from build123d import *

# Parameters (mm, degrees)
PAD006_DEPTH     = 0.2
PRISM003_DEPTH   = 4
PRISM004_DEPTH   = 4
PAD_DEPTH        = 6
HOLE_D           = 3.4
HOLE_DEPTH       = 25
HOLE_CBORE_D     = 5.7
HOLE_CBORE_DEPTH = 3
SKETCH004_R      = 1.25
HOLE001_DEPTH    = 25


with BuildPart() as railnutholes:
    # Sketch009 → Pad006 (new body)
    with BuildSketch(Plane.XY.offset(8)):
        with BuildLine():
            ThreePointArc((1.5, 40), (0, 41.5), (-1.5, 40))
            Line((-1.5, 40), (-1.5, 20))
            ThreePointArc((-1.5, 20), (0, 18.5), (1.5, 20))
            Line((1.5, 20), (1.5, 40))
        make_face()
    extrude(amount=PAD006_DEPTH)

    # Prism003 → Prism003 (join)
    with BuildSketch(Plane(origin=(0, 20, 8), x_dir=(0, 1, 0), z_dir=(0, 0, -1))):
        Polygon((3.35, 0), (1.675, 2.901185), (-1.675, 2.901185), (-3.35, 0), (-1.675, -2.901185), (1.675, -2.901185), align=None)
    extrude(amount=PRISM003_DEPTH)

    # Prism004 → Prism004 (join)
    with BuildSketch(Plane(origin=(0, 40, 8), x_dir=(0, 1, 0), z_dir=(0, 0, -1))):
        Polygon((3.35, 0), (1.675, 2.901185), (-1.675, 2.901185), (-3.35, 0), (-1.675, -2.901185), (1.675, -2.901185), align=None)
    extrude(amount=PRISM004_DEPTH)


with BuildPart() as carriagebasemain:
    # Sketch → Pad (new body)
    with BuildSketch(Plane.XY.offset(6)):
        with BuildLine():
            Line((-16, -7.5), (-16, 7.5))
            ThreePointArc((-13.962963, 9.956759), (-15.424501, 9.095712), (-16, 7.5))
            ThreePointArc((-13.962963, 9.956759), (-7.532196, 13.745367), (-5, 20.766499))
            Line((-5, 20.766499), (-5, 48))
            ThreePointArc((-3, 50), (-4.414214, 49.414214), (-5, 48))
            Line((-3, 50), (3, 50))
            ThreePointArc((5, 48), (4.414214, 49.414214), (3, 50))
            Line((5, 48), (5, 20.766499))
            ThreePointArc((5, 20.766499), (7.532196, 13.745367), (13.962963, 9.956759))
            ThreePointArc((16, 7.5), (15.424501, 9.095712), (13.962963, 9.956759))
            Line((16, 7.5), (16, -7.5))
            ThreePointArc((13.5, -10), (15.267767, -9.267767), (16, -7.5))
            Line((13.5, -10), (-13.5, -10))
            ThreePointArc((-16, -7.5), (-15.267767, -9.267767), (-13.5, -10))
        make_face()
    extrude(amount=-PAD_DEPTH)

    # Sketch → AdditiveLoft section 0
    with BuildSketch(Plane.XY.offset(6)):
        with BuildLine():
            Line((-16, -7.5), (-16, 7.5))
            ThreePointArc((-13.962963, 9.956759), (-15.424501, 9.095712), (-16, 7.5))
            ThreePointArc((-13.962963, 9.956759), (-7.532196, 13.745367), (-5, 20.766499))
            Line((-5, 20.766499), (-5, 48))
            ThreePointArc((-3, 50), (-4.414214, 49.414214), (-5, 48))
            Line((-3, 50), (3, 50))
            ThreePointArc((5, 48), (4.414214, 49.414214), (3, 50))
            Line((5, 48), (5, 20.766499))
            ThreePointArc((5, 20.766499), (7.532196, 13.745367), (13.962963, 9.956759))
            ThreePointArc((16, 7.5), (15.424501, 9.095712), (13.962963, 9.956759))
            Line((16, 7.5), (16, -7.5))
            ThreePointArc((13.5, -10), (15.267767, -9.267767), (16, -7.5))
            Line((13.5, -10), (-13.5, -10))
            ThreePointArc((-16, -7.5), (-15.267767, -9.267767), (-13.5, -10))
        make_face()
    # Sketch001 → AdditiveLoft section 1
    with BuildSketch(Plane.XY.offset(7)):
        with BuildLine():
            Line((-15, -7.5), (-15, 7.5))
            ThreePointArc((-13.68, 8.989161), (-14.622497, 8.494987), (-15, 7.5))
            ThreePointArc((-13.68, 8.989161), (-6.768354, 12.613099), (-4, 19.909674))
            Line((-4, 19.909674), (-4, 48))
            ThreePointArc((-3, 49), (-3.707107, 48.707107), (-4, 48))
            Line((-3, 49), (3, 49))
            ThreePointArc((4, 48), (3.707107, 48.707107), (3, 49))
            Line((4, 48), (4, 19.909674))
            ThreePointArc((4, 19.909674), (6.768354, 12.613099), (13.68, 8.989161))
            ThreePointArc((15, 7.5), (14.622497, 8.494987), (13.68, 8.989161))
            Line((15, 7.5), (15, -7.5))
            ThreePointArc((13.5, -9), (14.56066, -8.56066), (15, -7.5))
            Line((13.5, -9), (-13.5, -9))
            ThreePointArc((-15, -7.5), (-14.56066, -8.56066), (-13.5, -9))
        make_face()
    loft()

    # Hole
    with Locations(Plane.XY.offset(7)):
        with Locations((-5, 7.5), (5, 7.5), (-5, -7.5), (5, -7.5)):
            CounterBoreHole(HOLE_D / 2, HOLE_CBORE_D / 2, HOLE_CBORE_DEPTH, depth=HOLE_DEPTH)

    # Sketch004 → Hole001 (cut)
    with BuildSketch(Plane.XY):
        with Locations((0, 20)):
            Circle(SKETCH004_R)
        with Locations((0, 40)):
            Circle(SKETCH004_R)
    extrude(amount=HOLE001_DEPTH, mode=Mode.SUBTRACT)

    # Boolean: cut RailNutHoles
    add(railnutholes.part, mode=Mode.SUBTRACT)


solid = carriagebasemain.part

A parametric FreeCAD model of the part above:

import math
import FreeCAD as App
import Part
import Sketcher

V = App.Vector
Q = App.Units.Quantity

doc = App.newDocument("Part")
body = doc.addObject("PartDesign::Body", "Body")

sketch1 = doc.addObject("Sketcher::SketchObject", "Sketch")
body.addObject(sketch1)
sketch1.AttachmentSupport = (doc.XY_Plane, [""])
sketch1.MapMode = "FlatFace"
sketch1.AttachmentOffset = App.Placement(V(0, 0, 8), App.Rotation())
sketch1.addGeometry(Part.ArcOfCircle(Part.Circle(V(0, 40, 0), V(0, 0, 1), 1.5), math.radians(0), math.radians(180)), False)
sketch1.addGeometry(Part.LineSegment(V(-1.5, 40, 0), V(-1.5, 20, 0)), False)
sketch1.addGeometry(Part.ArcOfCircle(Part.Circle(V(0, 20, 0), V(0, 0, 1), 1.5), math.radians(180), math.radians(360)), False)
sketch1.addGeometry(Part.LineSegment(V(1.5, 20, 0), V(1.5, 40, 0)), False)
sketch1.addConstraint(Sketcher.Constraint("Tangent", 0, 2, 1, 1))
sketch1.addConstraint(Sketcher.Constraint("Tangent", 1, 2, 2, 1))
sketch1.addConstraint(Sketcher.Constraint("Tangent", 2, 2, 3, 1))
sketch1.addConstraint(Sketcher.Constraint("Tangent", 3, 2, 0, 1))
sketch1.addConstraint(Sketcher.Constraint("Vertical", 1))
sketch1.addConstraint(Sketcher.Constraint("Vertical", 3))
sketch1.addConstraint(Sketcher.Constraint("PointOnObject", 0, 3, -2))
sketch1.addConstraint(Sketcher.Constraint("Radius", 0, 1.5))
sketch1.addConstraint(Sketcher.Constraint("DistanceY", 1, 2, 1, 1, 20.0))
sketch1.addConstraint(Sketcher.Constraint("DistanceY", -1, 1, 0, 3, 40.0))
pad1 = doc.addObject("PartDesign::Pad", "Pad")
body.addObject(pad1)
pad1.Profile = sketch1
pad1.Length = 0.2

sketch2 = doc.addObject("Sketcher::SketchObject", "Sketch001")
body.addObject(sketch2)
sketch2.AttachmentSupport = (doc.XY_Plane, [""])
sketch2.MapMode = "FlatFace"
sketch2.AttachmentOffset = App.Placement(V(0, 0, 8), App.Rotation())
sketch2.addGeometry(Part.LineSegment(V(0, 23.35, 0), V(2.901185, 21.675, 0)), False)
sketch2.addGeometry(Part.LineSegment(V(2.901185, 21.675, 0), V(2.901185, 18.325, 0)), False)
sketch2.addGeometry(Part.LineSegment(V(2.901185, 18.325, 0), V(0, 16.65, 0)), False)
sketch2.addGeometry(Part.LineSegment(V(0, 16.65, 0), V(-2.901185, 18.325, 0)), False)
sketch2.addGeometry(Part.LineSegment(V(-2.901185, 18.325, 0), V(-2.901185, 21.675, 0)), False)
sketch2.addGeometry(Part.LineSegment(V(-2.901185, 21.675, 0), V(0, 23.35, 0)), False)
sketch2.addConstraint(Sketcher.Constraint("Coincident", 0, 2, 1, 1))
sketch2.addConstraint(Sketcher.Constraint("Coincident", 1, 2, 2, 1))
sketch2.addConstraint(Sketcher.Constraint("Coincident", 2, 2, 3, 1))
sketch2.addConstraint(Sketcher.Constraint("Coincident", 3, 2, 4, 1))
sketch2.addConstraint(Sketcher.Constraint("Coincident", 4, 2, 5, 1))
sketch2.addConstraint(Sketcher.Constraint("Coincident", 5, 2, 0, 1))
sketch2.addConstraint(Sketcher.Constraint("Vertical", 1))
sketch2.addConstraint(Sketcher.Constraint("Vertical", 4))
sketch2.addConstraint(Sketcher.Constraint("Symmetric", 1, 2, 3, 2, -2))
sketch2.addConstraint(Sketcher.Constraint("PointOnObject", 2, 2, -2))
sketch2.addConstraint(Sketcher.Constraint("PointOnObject", 5, 2, -2))
sketch2.addConstraint(Sketcher.Constraint("Parallel", 0, 3))
sketch2.addConstraint(Sketcher.Constraint("Parallel", 2, 5))
sketch2.addConstraint(Sketcher.Constraint("Angle", 0, Q("-30.000001 deg")))
sketch2.addConstraint(Sketcher.Constraint("DistanceY", 1, 2, 1, 1, 3.35))
sketch2.addConstraint(Sketcher.Constraint("DistanceY", 2, 2, 5, 2, 6.7))
sketch2.addConstraint(Sketcher.Constraint("DistanceY", -1, 1, 2, 2, 16.65))
pad2 = doc.addObject("PartDesign::Pad", "Pad001")
body.addObject(pad2)
pad2.Profile = sketch2
pad2.Length = 4
pad2.Reversed = True

sketch3 = doc.addObject("Sketcher::SketchObject", "Sketch002")
body.addObject(sketch3)
sketch3.AttachmentSupport = (doc.XY_Plane, [""])
sketch3.MapMode = "FlatFace"
sketch3.AttachmentOffset = App.Placement(V(0, 0, 8), App.Rotation())
sketch3.addGeometry(Part.LineSegment(V(0, 43.35, 0), V(2.901185, 41.675, 0)), False)
sketch3.addGeometry(Part.LineSegment(V(2.901185, 41.675, 0), V(2.901185, 38.325, 0)), False)
sketch3.addGeometry(Part.LineSegment(V(2.901185, 38.325, 0), V(0, 36.65, 0)), False)
sketch3.addGeometry(Part.LineSegment(V(0, 36.65, 0), V(-2.901185, 38.325, 0)), False)
sketch3.addGeometry(Part.LineSegment(V(-2.901185, 38.325, 0), V(-2.901185, 41.675, 0)), False)
sketch3.addGeometry(Part.LineSegment(V(-2.901185, 41.675, 0), V(0, 43.35, 0)), False)
sketch3.addConstraint(Sketcher.Constraint("Coincident", 0, 2, 1, 1))
sketch3.addConstraint(Sketcher.Constraint("Coincident", 1, 2, 2, 1))
sketch3.addConstraint(Sketcher.Constraint("Coincident", 2, 2, 3, 1))
sketch3.addConstraint(Sketcher.Constraint("Coincident", 3, 2, 4, 1))
sketch3.addConstraint(Sketcher.Constraint("Coincident", 4, 2, 5, 1))
sketch3.addConstraint(Sketcher.Constraint("Coincident", 5, 2, 0, 1))
sketch3.addConstraint(Sketcher.Constraint("Vertical", 1))
sketch3.addConstraint(Sketcher.Constraint("Vertical", 4))
sketch3.addConstraint(Sketcher.Constraint("Symmetric", 1, 2, 3, 2, -2))
sketch3.addConstraint(Sketcher.Constraint("PointOnObject", 2, 2, -2))
sketch3.addConstraint(Sketcher.Constraint("PointOnObject", 5, 2, -2))
sketch3.addConstraint(Sketcher.Constraint("Parallel", 0, 3))
sketch3.addConstraint(Sketcher.Constraint("Parallel", 2, 5))
sketch3.addConstraint(Sketcher.Constraint("Angle", 0, Q("-30.000001 deg")))
sketch3.addConstraint(Sketcher.Constraint("DistanceY", 1, 2, 1, 1, 3.35))
sketch3.addConstraint(Sketcher.Constraint("DistanceY", 2, 2, 5, 2, 6.7))
sketch3.addConstraint(Sketcher.Constraint("DistanceY", -1, 1, 2, 2, 36.65))
pad3 = doc.addObject("PartDesign::Pad", "Pad002")
body.addObject(pad3)
pad3.Profile = sketch3
pad3.Length = 4
pad3.Reversed = True
body2 = doc.addObject("PartDesign::Body", "Body001")

sketch4 = doc.addObject("Sketcher::SketchObject", "Sketch003")
body2.addObject(sketch4)
sketch4.AttachmentSupport = (doc.getObject("XY_Plane001"), [""])
sketch4.MapMode = "FlatFace"
sketch4.AttachmentOffset = App.Placement(V(0, 0, 6), App.Rotation())
sketch4.addGeometry(Part.LineSegment(V(-16, 7.5, 0), V(-16, -7.5, 0)), False)
sketch4.addGeometry(Part.ArcOfCircle(Part.Circle(V(-13.5, -7.5, 0), V(0, 0, 1), 2.5), math.radians(179.999996), math.radians(270.000004)), False)
sketch4.addGeometry(Part.LineSegment(V(-13.5, -10, 0), V(13.5, -10, 0)), False)
sketch4.addGeometry(Part.ArcOfCircle(Part.Circle(V(13.5, -7.5, 0), V(0, 0, 1), 2.5), math.radians(-90.000004), math.radians(0.000004)), False)
sketch4.addGeometry(Part.LineSegment(V(16, -7.5, 0), V(16, 7.5, 0)), False)
sketch4.addGeometry(Part.ArcOfCircle(Part.Circle(V(13.500001, 7.500001, 0), V(0, 0, 1), 2.499999), math.radians(-0.000013), math.radians(79.328085)), False)
sketch4.addGeometry(Part.ArcOfCircle(Part.Circle(V(16, 20.766499, 0), V(0, 0, 1), 11), math.radians(-180), math.radians(-100.671929)), False)
sketch4.addGeometry(Part.LineSegment(V(5, 20.766499, 0), V(5, 48, 0)), False)
sketch4.addGeometry(Part.ArcOfCircle(Part.Circle(V(3.000001, 48.000001, 0), V(0, 0, 1), 1.999999), math.radians(-0.000043), math.radians(90.000043)), False)
sketch4.addGeometry(Part.LineSegment(V(3, 50, 0), V(-3, 50, 0)), False)
sketch4.addGeometry(Part.ArcOfCircle(Part.Circle(V(-3.000001, 48.000001, 0), V(0, 0, 1), 1.999999), math.radians(89.999957), math.radians(180.000043)), False)
sketch4.addGeometry(Part.LineSegment(V(-5, 48, 0), V(-5, 20.766499, 0)), False)
sketch4.addGeometry(Part.ArcOfCircle(Part.Circle(V(-16, 20.766499, 0), V(0, 0, 1), 11), math.radians(-79.328071), math.radians(0)), False)
sketch4.addGeometry(Part.ArcOfCircle(Part.Circle(V(-13.500001, 7.500001, 0), V(0, 0, 1), 2.499999), math.radians(100.671915), math.radians(180.000013)), False)
sketch4.addConstraint(Sketcher.Constraint("Tangent", 0, 2, 1, 1))
sketch4.addConstraint(Sketcher.Constraint("Tangent", 1, 2, 2, 1))
sketch4.addConstraint(Sketcher.Constraint("Tangent", 2, 2, 3, 1))
sketch4.addConstraint(Sketcher.Constraint("Tangent", 3, 2, 4, 1))
sketch4.addConstraint(Sketcher.Constraint("Tangent", 4, 2, 5, 1))
sketch4.addConstraint(Sketcher.Constraint("Tangent", 5, 2, 6, 2))
sketch4.addConstraint(Sketcher.Constraint("Tangent", 6, 1, 7, 1))
sketch4.addConstraint(Sketcher.Constraint("Tangent", 7, 2, 8, 1))
sketch4.addConstraint(Sketcher.Constraint("Tangent", 8, 2, 9, 1))
sketch4.addConstraint(Sketcher.Constraint("Tangent", 9, 2, 10, 1))
sketch4.addConstraint(Sketcher.Constraint("Tangent", 10, 2, 11, 1))
sketch4.addConstraint(Sketcher.Constraint("Tangent", 11, 2, 12, 2))
sketch4.addConstraint(Sketcher.Constraint("Tangent", 12, 1, 13, 1))
sketch4.addConstraint(Sketcher.Constraint("Tangent", 13, 2, 0, 1))
sketch4.addConstraint(Sketcher.Constraint("Vertical", 0))
sketch4.addConstraint(Sketcher.Constraint("Horizontal", 2))
sketch4.addConstraint(Sketcher.Constraint("Vertical", 4))
sketch4.addConstraint(Sketcher.Constraint("Vertical", 7))
sketch4.addConstraint(Sketcher.Constraint("Horizontal", 9))
sketch4.addConstraint(Sketcher.Constraint("Vertical", 11))
sketch4.addConstraint(Sketcher.Constraint("Equal", 1, 3))
sketch4.addConstraint(Sketcher.Constraint("Equal", 3, 5))
sketch4.addConstraint(Sketcher.Constraint("Equal", 8, 10))
sketch4.addConstraint(Sketcher.Constraint("Equal", 6, 12))
sketch4.addConstraint(Sketcher.Constraint("Equal", 5, 13))
sketch4.addConstraint(Sketcher.Constraint("Symmetric", 1, 3, 5, 3, -1, 1))
sketch4.addConstraint(Sketcher.Constraint("Symmetric", 6, 3, 12, 3, -2))
sketch4.addConstraint(Sketcher.Constraint("Vertical", 12, 3, 0, 2))
sketch4.addConstraint(Sketcher.Constraint("Radius", 6, 11.0))
sketch4.addConstraint(Sketcher.Constraint("Radius", 8, 1.999999))
sketch4.addConstraint(Sketcher.Constraint("Radius", 1, 2.5))
sketch4.addConstraint(Sketcher.Constraint("DistanceX", 2, 1, 2, 2, 27.0))
sketch4.addConstraint(Sketcher.Constraint("DistanceY", 0, 2, 0, 1, 15.0))
sketch4.addConstraint(Sketcher.Constraint("DistanceY", -1, 1, 8, 3, 48.000001))
pad4 = doc.addObject("PartDesign::Pad", "Pad003")
body2.addObject(pad4)
pad4.Profile = sketch4
pad4.Length = 6
pad4.Reversed = True

sketch5 = doc.addObject("Sketcher::SketchObject", "Sketch004")
body2.addObject(sketch5)
sketch5.AttachmentSupport = (doc.getObject("XY_Plane001"), [""])
sketch5.MapMode = "FlatFace"
sketch5.AttachmentOffset = App.Placement(V(0, 0, 6), App.Rotation())
sketch5.addGeometry(Part.LineSegment(V(-16, 7.5, 0), V(-16, -7.5, 0)), False)
sketch5.addGeometry(Part.ArcOfCircle(Part.Circle(V(-13.5, -7.5, 0), V(0, 0, 1), 2.5), math.radians(179.999996), math.radians(270.000004)), False)
sketch5.addGeometry(Part.LineSegment(V(-13.5, -10, 0), V(13.5, -10, 0)), False)
sketch5.addGeometry(Part.ArcOfCircle(Part.Circle(V(13.5, -7.5, 0), V(0, 0, 1), 2.5), math.radians(-90.000004), math.radians(0.000004)), False)
sketch5.addGeometry(Part.LineSegment(V(16, -7.5, 0), V(16, 7.5, 0)), False)
sketch5.addGeometry(Part.ArcOfCircle(Part.Circle(V(13.500001, 7.500001, 0), V(0, 0, 1), 2.499999), math.radians(-0.000013), math.radians(79.328085)), False)
sketch5.addGeometry(Part.ArcOfCircle(Part.Circle(V(16, 20.766499, 0), V(0, 0, 1), 11), math.radians(-180), math.radians(-100.671929)), False)
sketch5.addGeometry(Part.LineSegment(V(5, 20.766499, 0), V(5, 48, 0)), False)
sketch5.addGeometry(Part.ArcOfCircle(Part.Circle(V(3.000001, 48.000001, 0), V(0, 0, 1), 1.999999), math.radians(-0.000043), math.radians(90.000043)), False)
sketch5.addGeometry(Part.LineSegment(V(3, 50, 0), V(-3, 50, 0)), False)
sketch5.addGeometry(Part.ArcOfCircle(Part.Circle(V(-3.000001, 48.000001, 0), V(0, 0, 1), 1.999999), math.radians(89.999957), math.radians(180.000043)), False)
sketch5.addGeometry(Part.LineSegment(V(-5, 48, 0), V(-5, 20.766499, 0)), False)
sketch5.addGeometry(Part.ArcOfCircle(Part.Circle(V(-16, 20.766499, 0), V(0, 0, 1), 11), math.radians(-79.328071), math.radians(0)), False)
sketch5.addGeometry(Part.ArcOfCircle(Part.Circle(V(-13.500001, 7.500001, 0), V(0, 0, 1), 2.499999), math.radians(100.671915), math.radians(180.000013)), False)
sketch5.addConstraint(Sketcher.Constraint("Tangent", 0, 2, 1, 1))
sketch5.addConstraint(Sketcher.Constraint("Tangent", 1, 2, 2, 1))
sketch5.addConstraint(Sketcher.Constraint("Tangent", 2, 2, 3, 1))
sketch5.addConstraint(Sketcher.Constraint("Tangent", 3, 2, 4, 1))
sketch5.addConstraint(Sketcher.Constraint("Tangent", 4, 2, 5, 1))
sketch5.addConstraint(Sketcher.Constraint("Tangent", 5, 2, 6, 2))
sketch5.addConstraint(Sketcher.Constraint("Tangent", 6, 1, 7, 1))
sketch5.addConstraint(Sketcher.Constraint("Tangent", 7, 2, 8, 1))
sketch5.addConstraint(Sketcher.Constraint("Tangent", 8, 2, 9, 1))
sketch5.addConstraint(Sketcher.Constraint("Tangent", 9, 2, 10, 1))
sketch5.addConstraint(Sketcher.Constraint("Tangent", 10, 2, 11, 1))
sketch5.addConstraint(Sketcher.Constraint("Tangent", 11, 2, 12, 2))
sketch5.addConstraint(Sketcher.Constraint("Tangent", 12, 1, 13, 1))
sketch5.addConstraint(Sketcher.Constraint("Tangent", 13, 2, 0, 1))
sketch5.addConstraint(Sketcher.Constraint("Vertical", 0))
sketch5.addConstraint(Sketcher.Constraint("Horizontal", 2))
sketch5.addConstraint(Sketcher.Constraint("Vertical", 4))
sketch5.addConstraint(Sketcher.Constraint("Vertical", 7))
sketch5.addConstraint(Sketcher.Constraint("Horizontal", 9))
sketch5.addConstraint(Sketcher.Constraint("Vertical", 11))
sketch5.addConstraint(Sketcher.Constraint("Equal", 1, 3))
sketch5.addConstraint(Sketcher.Constraint("Equal", 3, 5))
sketch5.addConstraint(Sketcher.Constraint("Equal", 8, 10))
sketch5.addConstraint(Sketcher.Constraint("Equal", 6, 12))
sketch5.addConstraint(Sketcher.Constraint("Equal", 5, 13))
sketch5.addConstraint(Sketcher.Constraint("Symmetric", 1, 3, 5, 3, -1, 1))
sketch5.addConstraint(Sketcher.Constraint("Symmetric", 6, 3, 12, 3, -2))
sketch5.addConstraint(Sketcher.Constraint("Vertical", 12, 3, 0, 2))
sketch5.addConstraint(Sketcher.Constraint("Radius", 6, 11.0))
sketch5.addConstraint(Sketcher.Constraint("Radius", 8, 1.999999))
sketch5.addConstraint(Sketcher.Constraint("Radius", 1, 2.5))
sketch5.addConstraint(Sketcher.Constraint("DistanceX", 2, 1, 2, 2, 27.0))
sketch5.addConstraint(Sketcher.Constraint("DistanceY", 0, 2, 0, 1, 15.0))
sketch5.addConstraint(Sketcher.Constraint("DistanceY", -1, 1, 8, 3, 48.000001))

sketch6 = doc.addObject("Sketcher::SketchObject", "Sketch005")
body2.addObject(sketch6)
sketch6.AttachmentSupport = (doc.getObject("XY_Plane001"), [""])
sketch6.MapMode = "FlatFace"
sketch6.AttachmentOffset = App.Placement(V(0, 0, 7), App.Rotation())
sketch6.addGeometry(Part.LineSegment(V(-15, 7.5, 0), V(-15, -7.5, 0)), False)
sketch6.addGeometry(Part.ArcOfCircle(Part.Circle(V(-13.499999, -7.499999, 0), V(0, 0, 1), 1.500001), math.radians(-179.999978), math.radians(-90.000022)), False)
sketch6.addGeometry(Part.LineSegment(V(-13.5, -9, 0), V(13.5, -9, 0)), False)
sketch6.addGeometry(Part.ArcOfCircle(Part.Circle(V(13.499999, -7.499999, 0), V(0, 0, 1), 1.500001), math.radians(-89.999978), math.radians(-0.000022)), False)
sketch6.addGeometry(Part.LineSegment(V(15, -7.5, 0), V(15, 7.5, 0)), False)
sketch6.addGeometry(Part.ArcOfCircle(Part.Circle(V(13.499998, 7.499999, 0), V(0, 0, 1), 1.500002), math.radians(0.00005), math.radians(83.107841)), False)
sketch6.addGeometry(Part.ArcOfCircle(Part.Circle(V(15, 19.909674, 0), V(0, 0, 1), 11), math.radians(179.999999), math.radians(263.107897)), False)
sketch6.addGeometry(Part.LineSegment(V(4, 19.909674, 0), V(4, 48, 0)), False)
sketch6.addGeometry(Part.ArcOfCircle(Part.Circle(V(3.000001, 48.000001, 0), V(0, 0, 1), 0.999999), math.radians(-0.000043), math.radians(90.000043)), False)
sketch6.addGeometry(Part.LineSegment(V(3, 49, 0), V(-3, 49, 0)), False)
sketch6.addGeometry(Part.ArcOfCircle(Part.Circle(V(-3.000001, 48.000001, 0), V(0, 0, 1), 0.999999), math.radians(89.999957), math.radians(180.000043)), False)
sketch6.addGeometry(Part.LineSegment(V(-4, 48, 0), V(-4, 19.909674, 0)), False)
sketch6.addGeometry(Part.ArcOfCircle(Part.Circle(V(-15, 19.909674, 0), V(0, 0, 1), 11), math.radians(-83.107897), math.radians(0.000001)), False)
sketch6.addGeometry(Part.ArcOfCircle(Part.Circle(V(-13.499998, 7.499999, 0), V(0, 0, 1), 1.500002), math.radians(96.892159), math.radians(179.99995)), False)
sketch6.addConstraint(Sketcher.Constraint("Tangent", 0, 2, 1, 1))
sketch6.addConstraint(Sketcher.Constraint("Tangent", 1, 2, 2, 1))
sketch6.addConstraint(Sketcher.Constraint("Tangent", 2, 2, 3, 1))
sketch6.addConstraint(Sketcher.Constraint("Tangent", 3, 2, 4, 1))
sketch6.addConstraint(Sketcher.Constraint("Tangent", 4, 2, 5, 1))
sketch6.addConstraint(Sketcher.Constraint("Tangent", 5, 2, 6, 2))
sketch6.addConstraint(Sketcher.Constraint("Tangent", 6, 1, 7, 1))
sketch6.addConstraint(Sketcher.Constraint("Tangent", 7, 2, 8, 1))
sketch6.addConstraint(Sketcher.Constraint("Tangent", 8, 2, 9, 1))
sketch6.addConstraint(Sketcher.Constraint("Tangent", 9, 2, 10, 1))
sketch6.addConstraint(Sketcher.Constraint("Tangent", 10, 2, 11, 1))
sketch6.addConstraint(Sketcher.Constraint("Tangent", 11, 2, 12, 2))
sketch6.addConstraint(Sketcher.Constraint("Tangent", 12, 1, 13, 1))
sketch6.addConstraint(Sketcher.Constraint("Tangent", 13, 2, 0, 1))
sketch6.addConstraint(Sketcher.Constraint("Vertical", 0))
sketch6.addConstraint(Sketcher.Constraint("Horizontal", 2))
sketch6.addConstraint(Sketcher.Constraint("Vertical", 4))
sketch6.addConstraint(Sketcher.Constraint("Vertical", 7))
sketch6.addConstraint(Sketcher.Constraint("Horizontal", 9))
sketch6.addConstraint(Sketcher.Constraint("Vertical", 11))
sketch6.addConstraint(Sketcher.Constraint("Equal", 1, 3))
sketch6.addConstraint(Sketcher.Constraint("Equal", 3, 5))
sketch6.addConstraint(Sketcher.Constraint("Equal", 8, 10))
sketch6.addConstraint(Sketcher.Constraint("Equal", 6, 12))
sketch6.addConstraint(Sketcher.Constraint("Equal", 5, 13))
sketch6.addConstraint(Sketcher.Constraint("Symmetric", 1, 3, 5, 3, -1, 1))
sketch6.addConstraint(Sketcher.Constraint("Symmetric", 6, 3, 12, 3, -2))
sketch6.addConstraint(Sketcher.Constraint("Vertical", 12, 3, 0, 2))
sketch6.addConstraint(Sketcher.Constraint("Radius", 6, 11.0))
sketch6.addConstraint(Sketcher.Constraint("Radius", 8, 0.999999))
sketch6.addConstraint(Sketcher.Constraint("Radius", 1, 1.500001))
sketch6.addConstraint(Sketcher.Constraint("DistanceX", 2, 1, 2, 2, 27.0))
sketch6.addConstraint(Sketcher.Constraint("DistanceY", 0, 2, 0, 1, 15.0))
sketch6.addConstraint(Sketcher.Constraint("DistanceY", -1, 1, 8, 3, 48.000001))

additiveloft = doc.addObject("PartDesign::AdditiveLoft", "AdditiveLoft")
body2.addObject(additiveloft)
additiveloft.Profile = sketch5
additiveloft.Sections = [sketch6]

sketch7 = doc.addObject("Sketcher::SketchObject", "Sketch006")
body2.addObject(sketch7)
sketch7.AttachmentSupport = (doc.getObject("XY_Plane001"), [""])
sketch7.MapMode = "FlatFace"
sketch7.AttachmentOffset = App.Placement(V(0, 0, 7), App.Rotation())
sketch7.addGeometry(Part.Circle(V(-5, 7.5, 0), V(0, 0, 1), 1.7), False)
sketch7.addGeometry(Part.Circle(V(5, 7.5, 0), V(0, 0, 1), 1.7), False)
sketch7.addGeometry(Part.Circle(V(-5, -7.5, 0), V(0, 0, 1), 1.7), False)
sketch7.addGeometry(Part.Circle(V(5, -7.5, 0), V(0, 0, 1), 1.7), False)
sketch7.addConstraint(Sketcher.Constraint("Equal", 0, 1))
sketch7.addConstraint(Sketcher.Constraint("Equal", 1, 2))
sketch7.addConstraint(Sketcher.Constraint("Equal", 2, 3))
sketch7.addConstraint(Sketcher.Constraint("Symmetric", 1, 3, 2, 3, -1, 1))
sketch7.addConstraint(Sketcher.Constraint("Symmetric", 0, 3, 3, 3, -1, 1))
sketch7.addConstraint(Sketcher.Constraint("Symmetric", 0, 3, 1, 3, -2))
sketch7.addConstraint(Sketcher.Constraint("Diameter", 0, 3.4))
sketch7.addConstraint(Sketcher.Constraint("DistanceX", 0, 3, -1, 1, 5.0))
sketch7.addConstraint(Sketcher.Constraint("DistanceY", 2, 3, 0, 3, 15.0))
doc.recompute()
hole = doc.addObject("PartDesign::Hole", "Hole")
body2.addObject(hole)
hole.Profile = sketch7
hole.ThreadType = "None"
hole.Diameter = 3.4
hole.DepthType = "Dimension"
hole.Depth = 25
hole.DrillPoint = "Flat"
hole.HoleCutType = "Counterbore"
hole.HoleCutDiameter = 5.7
hole.HoleCutDepth = 3

sketch8 = doc.addObject("Sketcher::SketchObject", "Sketch007")
body2.addObject(sketch8)
sketch8.AttachmentSupport = (doc.getObject("XY_Plane001"), [""])
sketch8.MapMode = "FlatFace"
sketch8.addGeometry(Part.Circle(V(0, 20, 0), V(0, 0, 1), 1.25), False)
sketch8.addGeometry(Part.Circle(V(0, 40, 0), V(0, 0, 1), 1.25), False)
sketch8.addConstraint(Sketcher.Constraint("Equal", 0, 1))
sketch8.addConstraint(Sketcher.Constraint("PointOnObject", 0, 3, -2))
sketch8.addConstraint(Sketcher.Constraint("PointOnObject", 1, 3, -2))
sketch8.addConstraint(Sketcher.Constraint("Diameter", 0, 2.5))
sketch8.addConstraint(Sketcher.Constraint("DistanceY", -1, 1, 0, 3, 20.0))
sketch8.addConstraint(Sketcher.Constraint("DistanceY", -1, 1, 1, 3, 40.0))
pocket1 = doc.addObject("PartDesign::Pocket", "Pocket")
body2.addObject(pocket1)
pocket1.Profile = sketch8
pocket1.Length = 25
pocket1.Reversed = True
doc.recompute()

boolean = doc.addObject("PartDesign::Boolean", "Boolean")
body2.addObject(boolean)
boolean.Type = "Cut"
boolean.addObjects([body])

doc.recompute()
